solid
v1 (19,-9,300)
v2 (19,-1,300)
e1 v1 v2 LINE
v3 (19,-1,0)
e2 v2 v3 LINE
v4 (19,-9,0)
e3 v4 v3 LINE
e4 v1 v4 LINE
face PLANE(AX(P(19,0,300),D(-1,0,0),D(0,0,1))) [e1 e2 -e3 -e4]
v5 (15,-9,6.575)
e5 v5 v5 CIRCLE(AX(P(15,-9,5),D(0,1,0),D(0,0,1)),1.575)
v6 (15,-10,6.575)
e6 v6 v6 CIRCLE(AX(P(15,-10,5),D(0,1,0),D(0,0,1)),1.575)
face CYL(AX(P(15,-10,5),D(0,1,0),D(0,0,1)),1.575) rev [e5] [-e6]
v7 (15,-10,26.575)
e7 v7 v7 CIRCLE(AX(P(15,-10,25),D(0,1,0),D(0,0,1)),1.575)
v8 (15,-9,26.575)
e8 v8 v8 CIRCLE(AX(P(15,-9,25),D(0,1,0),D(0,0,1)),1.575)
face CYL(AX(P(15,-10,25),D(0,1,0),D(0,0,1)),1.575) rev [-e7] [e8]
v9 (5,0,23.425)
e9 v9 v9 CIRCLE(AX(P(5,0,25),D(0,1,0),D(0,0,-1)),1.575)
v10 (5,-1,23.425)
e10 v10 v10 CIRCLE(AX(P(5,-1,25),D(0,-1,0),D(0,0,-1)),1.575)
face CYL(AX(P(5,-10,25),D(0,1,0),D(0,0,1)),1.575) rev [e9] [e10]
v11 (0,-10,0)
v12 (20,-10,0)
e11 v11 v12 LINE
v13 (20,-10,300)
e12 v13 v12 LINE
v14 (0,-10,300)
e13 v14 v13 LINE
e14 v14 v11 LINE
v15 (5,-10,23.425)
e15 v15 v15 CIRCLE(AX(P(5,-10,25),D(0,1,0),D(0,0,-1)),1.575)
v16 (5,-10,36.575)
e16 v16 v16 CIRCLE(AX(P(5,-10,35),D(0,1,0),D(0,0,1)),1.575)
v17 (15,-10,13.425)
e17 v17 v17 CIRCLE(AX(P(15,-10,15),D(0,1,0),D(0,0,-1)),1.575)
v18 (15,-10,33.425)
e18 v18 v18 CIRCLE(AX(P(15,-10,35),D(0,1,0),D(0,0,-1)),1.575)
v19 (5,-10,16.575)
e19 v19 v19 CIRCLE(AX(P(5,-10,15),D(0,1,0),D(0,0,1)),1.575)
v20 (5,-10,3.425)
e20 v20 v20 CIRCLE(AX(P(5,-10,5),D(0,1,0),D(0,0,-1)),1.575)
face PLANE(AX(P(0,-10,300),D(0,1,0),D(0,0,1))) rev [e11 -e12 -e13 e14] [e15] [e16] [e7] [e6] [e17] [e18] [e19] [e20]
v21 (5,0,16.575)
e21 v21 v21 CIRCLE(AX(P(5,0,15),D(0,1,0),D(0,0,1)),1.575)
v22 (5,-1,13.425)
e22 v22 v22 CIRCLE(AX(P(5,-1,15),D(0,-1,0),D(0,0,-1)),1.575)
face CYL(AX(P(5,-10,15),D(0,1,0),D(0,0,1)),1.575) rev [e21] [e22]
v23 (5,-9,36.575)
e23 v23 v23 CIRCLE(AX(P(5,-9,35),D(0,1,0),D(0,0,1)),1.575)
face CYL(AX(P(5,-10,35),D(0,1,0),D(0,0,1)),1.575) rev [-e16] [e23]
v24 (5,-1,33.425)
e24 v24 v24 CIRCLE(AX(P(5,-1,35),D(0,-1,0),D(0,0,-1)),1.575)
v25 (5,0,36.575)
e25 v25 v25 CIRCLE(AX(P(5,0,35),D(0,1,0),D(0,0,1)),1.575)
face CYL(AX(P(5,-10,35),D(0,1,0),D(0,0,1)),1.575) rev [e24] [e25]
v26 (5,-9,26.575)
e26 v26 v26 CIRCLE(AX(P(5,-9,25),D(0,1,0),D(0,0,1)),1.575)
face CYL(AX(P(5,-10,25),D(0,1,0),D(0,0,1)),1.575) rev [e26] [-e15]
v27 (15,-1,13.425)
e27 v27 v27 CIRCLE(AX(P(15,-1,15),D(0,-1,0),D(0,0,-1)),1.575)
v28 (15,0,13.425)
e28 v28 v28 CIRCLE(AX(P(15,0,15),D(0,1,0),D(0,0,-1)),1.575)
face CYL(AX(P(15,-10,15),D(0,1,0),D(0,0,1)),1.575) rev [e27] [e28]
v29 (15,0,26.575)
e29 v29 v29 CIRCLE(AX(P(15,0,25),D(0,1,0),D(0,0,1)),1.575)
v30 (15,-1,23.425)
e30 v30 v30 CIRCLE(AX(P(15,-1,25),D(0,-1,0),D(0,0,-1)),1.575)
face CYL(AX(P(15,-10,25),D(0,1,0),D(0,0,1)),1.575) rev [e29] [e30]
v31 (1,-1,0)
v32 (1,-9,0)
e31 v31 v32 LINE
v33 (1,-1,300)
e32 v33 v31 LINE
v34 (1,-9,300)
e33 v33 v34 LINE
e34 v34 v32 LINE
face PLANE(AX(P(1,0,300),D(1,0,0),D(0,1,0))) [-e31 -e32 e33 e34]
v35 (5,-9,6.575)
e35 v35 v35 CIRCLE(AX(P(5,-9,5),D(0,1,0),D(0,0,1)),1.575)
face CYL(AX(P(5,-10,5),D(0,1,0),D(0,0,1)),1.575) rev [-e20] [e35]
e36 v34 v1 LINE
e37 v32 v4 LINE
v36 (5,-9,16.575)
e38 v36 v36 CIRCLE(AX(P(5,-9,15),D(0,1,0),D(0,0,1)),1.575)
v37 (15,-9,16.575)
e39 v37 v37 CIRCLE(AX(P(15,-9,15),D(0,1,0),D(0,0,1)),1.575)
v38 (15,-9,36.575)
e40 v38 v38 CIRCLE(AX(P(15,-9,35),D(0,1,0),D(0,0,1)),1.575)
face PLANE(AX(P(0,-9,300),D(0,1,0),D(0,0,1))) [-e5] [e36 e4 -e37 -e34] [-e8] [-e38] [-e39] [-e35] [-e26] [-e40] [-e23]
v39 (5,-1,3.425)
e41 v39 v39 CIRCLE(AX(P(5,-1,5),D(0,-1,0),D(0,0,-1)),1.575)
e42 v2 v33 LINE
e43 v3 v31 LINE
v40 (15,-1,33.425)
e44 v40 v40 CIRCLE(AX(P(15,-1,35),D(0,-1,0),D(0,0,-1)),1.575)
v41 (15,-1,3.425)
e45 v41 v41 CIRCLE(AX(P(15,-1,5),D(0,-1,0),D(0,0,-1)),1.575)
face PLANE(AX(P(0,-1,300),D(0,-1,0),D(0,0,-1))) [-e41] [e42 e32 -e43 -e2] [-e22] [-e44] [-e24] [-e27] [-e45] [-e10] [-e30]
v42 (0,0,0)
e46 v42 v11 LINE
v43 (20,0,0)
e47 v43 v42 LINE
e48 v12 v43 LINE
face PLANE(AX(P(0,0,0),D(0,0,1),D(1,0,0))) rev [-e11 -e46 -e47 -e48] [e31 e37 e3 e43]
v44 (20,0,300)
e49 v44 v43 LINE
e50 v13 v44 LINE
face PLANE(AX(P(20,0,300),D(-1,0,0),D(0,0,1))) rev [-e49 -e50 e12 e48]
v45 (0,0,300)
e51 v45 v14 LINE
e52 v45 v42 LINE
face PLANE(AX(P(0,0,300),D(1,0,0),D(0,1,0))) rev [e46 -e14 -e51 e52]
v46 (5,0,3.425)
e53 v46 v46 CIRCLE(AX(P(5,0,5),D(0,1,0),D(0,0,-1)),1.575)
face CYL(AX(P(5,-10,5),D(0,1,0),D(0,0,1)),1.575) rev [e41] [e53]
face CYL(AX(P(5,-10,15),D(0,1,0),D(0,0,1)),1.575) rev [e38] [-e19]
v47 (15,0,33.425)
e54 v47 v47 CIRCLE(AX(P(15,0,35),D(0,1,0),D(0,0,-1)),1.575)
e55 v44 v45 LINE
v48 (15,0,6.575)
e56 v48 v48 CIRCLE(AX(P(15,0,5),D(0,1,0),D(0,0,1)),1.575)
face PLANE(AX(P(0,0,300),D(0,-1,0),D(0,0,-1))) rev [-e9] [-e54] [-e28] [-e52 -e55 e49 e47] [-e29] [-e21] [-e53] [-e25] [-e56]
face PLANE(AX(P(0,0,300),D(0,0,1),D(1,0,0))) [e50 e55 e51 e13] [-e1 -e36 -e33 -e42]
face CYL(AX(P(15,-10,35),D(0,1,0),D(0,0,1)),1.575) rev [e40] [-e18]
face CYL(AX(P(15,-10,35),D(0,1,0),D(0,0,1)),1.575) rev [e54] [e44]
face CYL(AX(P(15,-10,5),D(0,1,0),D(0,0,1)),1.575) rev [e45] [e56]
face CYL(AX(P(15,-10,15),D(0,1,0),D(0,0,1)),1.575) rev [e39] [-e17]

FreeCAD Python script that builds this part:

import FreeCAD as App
import Part
import Sketcher

V = App.Vector
Q = App.Units.Quantity

doc = App.newDocument("Part")
body = doc.addObject("PartDesign::Body", "Body")

sketch1 = doc.addObject("Sketcher::SketchObject", "Sketch")
body.addObject(sketch1)
sketch1.AttachmentSupport = (doc.XY_Plane, [""])
sketch1.MapMode = "FlatFace"
sketch1.addGeometry(Part.LineSegment(V(0, 0, 0), V(0, -10, 0)), False)
sketch1.addGeometry(Part.LineSegment(V(0, -10, 0), V(20, -10, 0)), False)
sketch1.addGeometry(Part.LineSegment(V(20, -10, 0), V(20, 0, 0)), False)
sketch1.addGeometry(Part.LineSegment(V(20, 0, 0), V(0, 0, 0)), False)
sketch1.addGeometry(Part.LineSegment(V(19, -9, 0), V(1, -9, 0)), False)
sketch1.addGeometry(Part.LineSegment(V(1, -9, 0), V(1, -1, 0)), False)
sketch1.addGeometry(Part.LineSegment(V(1, -1, 0), V(19, -1, 0)), False)
sketch1.addGeometry(Part.LineSegment(V(19, -1, 0), V(19, -9, 0)), False)
sketch1.addConstraint(Sketcher.Constraint("Coincident", 0, 2, 1, 1))
sketch1.addConstraint(Sketcher.Constraint("Coincident", 1, 2, 2, 1))
sketch1.addConstraint(Sketcher.Constraint("Coincident", 2, 2, 3, 1))
sketch1.addConstraint(Sketcher.Constraint("Coincident", 3, 2, 0, 1))
sketch1.addConstraint(Sketcher.Constraint("Coincident", 4, 2, 5, 1))
sketch1.addConstraint(Sketcher.Constraint("Coincident", 5, 2, 6, 1))
sketch1.addConstraint(Sketcher.Constraint("Coincident", 6, 2, 7, 1))
sketch1.addConstraint(Sketcher.Constraint("Coincident", 7, 2, 4, 1))
sketch1.addConstraint(Sketcher.Constraint("Vertical", 0))
sketch1.addConstraint(Sketcher.Constraint("Horizontal", 1))
sketch1.addConstraint(Sketcher.Constraint("Vertical", 2))
sketch1.addConstraint(Sketcher.Constraint("Horizontal", 3))
sketch1.addConstraint(Sketcher.Constraint("Horizontal", 4))
sketch1.addConstraint(Sketcher.Constraint("Vertical", 5))
sketch1.addConstraint(Sketcher.Constraint("Horizontal", 6))
sketch1.addConstraint(Sketcher.Constraint("Vertical", 7))
sketch1.addConstraint(Sketcher.Constraint("Coincident", 3, 2, -1, 1))
sketch1.addConstraint(Sketcher.Constraint("DistanceX", 1, 1, 1, 2, Q("20 mm")))
sketch1.addConstraint(Sketcher.Constraint("DistanceX", 4, 2, 4, 1, Q("18 mm")))
sketch1.addConstraint(Sketcher.Constraint("DistanceY", 0, 2, 0, 1, Q("10 mm")))
sketch1.addConstraint(Sketcher.Constraint("DistanceY", 5, 1, 5, 2, Q("8 mm")))
sketch1.addConstraint(Sketcher.Constraint("DistanceX", -1, 1, 4, 2, Q("1 mm")))
sketch1.addConstraint(Sketcher.Constraint("DistanceY", 4, 2, -1, 1, Q("9 mm")))
pad1 = doc.addObject("PartDesign::Pad", "Pad")
body.addObject(pad1)
pad1.Profile = sketch1
pad1.Length = 300

sketch2 = doc.addObject("Sketcher::SketchObject", "Sketch001")
body.addObject(sketch2)
sketch2.AttachmentSupport = (doc.XZ_Plane, [""])
sketch2.MapMode = "FlatFace"
sketch2.addGeometry(Part.Circle(V(15, 5, 0), V(0, 0, 1), 1.6), False)
sketch2.addGeometry(Part.Circle(V(5, 5, 0), V(0, 0, 1), 1.6), False)
sketch2.addGeometry(Part.Circle(V(5, 15, 0), V(0, 0, 1), 1.6), False)
sketch2.addGeometry(Part.Circle(V(15, 15, 0), V(0, 0, 1), 1.6), False)
sketch2.addGeometry(Part.Circle(V(15, 25, 0), V(0, 0, 1), 1.6), False)
sketch2.addGeometry(Part.Circle(V(5, 25, 0), V(0, 0, 1), 1.6), False)
sketch2.addGeometry(Part.Circle(V(5, 35, 0), V(0, 0, 1), 1.6), False)
sketch2.addGeometry(Part.Circle(V(15, 35, 0), V(0, 0, 1), 1.6), False)
sketch2.addConstraint(Sketcher.Constraint("Equal", 0, 1))
sketch2.addConstraint(Sketcher.Constraint("Equal", 1, 2))
sketch2.addConstraint(Sketcher.Constraint("Equal", 2, 3))
sketch2.addConstraint(Sketcher.Constraint("Equal", 3, 4))
sketch2.addConstraint(Sketcher.Constraint("Equal", 4, 5))
sketch2.addConstraint(Sketcher.Constraint("Equal", 5, 6))
sketch2.addConstraint(Sketcher.Constraint("Equal", 6, 7))
sketch2.addConstraint(Sketcher.Constraint("Horizontal", 0, 3, 1, 3))
sketch2.addConstraint(Sketcher.Constraint("Horizontal", 2, 3, 3, 3))
sketch2.addConstraint(Sketcher.Constraint("Horizontal", 4, 3, 5, 3))
sketch2.addConstraint(Sketcher.Constraint("Horizontal", 6, 3, 7, 3))
sketch2.addConstraint(Sketcher.Constraint("Vertical", 1, 3, 2, 3))
sketch2.addConstraint(Sketcher.Constraint("Vertical", 0, 3, 3, 3))
sketch2.addConstraint(Sketcher.Constraint("Vertical", 3, 3, 4, 3))
sketch2.addConstraint(Sketcher.Constraint("Vertical", 2, 3, 5, 3))
sketch2.addConstraint(Sketcher.Constraint("Vertical", 5, 3, 6, 3))
sketch2.addConstraint(Sketcher.Constraint("Vertical", 4, 3, 7, 3))
sketch2.addConstraint(Sketcher.Constraint("Diameter", 0, Q("3.15 mm")))
sketch2.addConstraint(Sketcher.Constraint("DistanceX", -1, 1, 0, 3, Q("15 mm")))
sketch2.addConstraint(Sketcher.Constraint("DistanceY", -1, 1, 0, 3, Q("5 mm")))
sketch2.addConstraint(Sketcher.Constraint("DistanceX", -1, 1, 1, 3, Q("5 mm")))
sketch2.addConstraint(Sketcher.Constraint("DistanceY", -1, 1, 2, 3, Q("15 mm")))
sketch2.addConstraint(Sketcher.Constraint("DistanceY", -1, 1, 4, 3, Q("25 mm")))
sketch2.addConstraint(Sketcher.Constraint("DistanceY", -1, 1, 6, 3, Q("35 mm")))
pocket1 = doc.addObject("PartDesign::Pocket", "Pocket")
body.addObject(pocket1)
pocket1.Profile = sketch2
pocket1.Type = "ThroughAll"
pocket1.Reversed = True

doc.recompute()
